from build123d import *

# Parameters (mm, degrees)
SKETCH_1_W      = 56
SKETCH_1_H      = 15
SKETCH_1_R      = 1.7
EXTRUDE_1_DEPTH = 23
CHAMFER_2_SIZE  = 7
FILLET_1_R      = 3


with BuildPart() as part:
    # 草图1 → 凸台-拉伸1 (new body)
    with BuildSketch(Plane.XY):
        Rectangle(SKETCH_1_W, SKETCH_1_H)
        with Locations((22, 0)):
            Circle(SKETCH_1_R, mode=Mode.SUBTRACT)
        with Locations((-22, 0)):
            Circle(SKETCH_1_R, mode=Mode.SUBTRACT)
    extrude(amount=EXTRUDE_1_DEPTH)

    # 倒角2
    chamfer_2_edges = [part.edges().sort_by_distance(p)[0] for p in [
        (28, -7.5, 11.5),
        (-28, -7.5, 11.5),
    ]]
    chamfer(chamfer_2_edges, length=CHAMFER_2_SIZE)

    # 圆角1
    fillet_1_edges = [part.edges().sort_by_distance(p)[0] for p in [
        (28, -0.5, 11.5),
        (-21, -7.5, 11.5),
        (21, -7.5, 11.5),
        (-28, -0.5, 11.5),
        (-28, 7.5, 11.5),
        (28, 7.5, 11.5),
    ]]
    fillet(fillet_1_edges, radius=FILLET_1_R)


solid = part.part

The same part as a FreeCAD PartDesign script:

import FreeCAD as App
import Part
import Sketcher

V = App.Vector


def edges_at(feature, points):
    """Names of the edges that pass closest to the given points."""
    edges = feature.Shape.Edges
    near = lambda p: min(range(len(edges)), key=lambda i: edges[i].distToShape(Part.Vertex(*p))[0])
    return sorted({f"Edge{near(p) + 1}" for p in points})

doc = App.newDocument("Part")
params = doc.addObject("Spreadsheet::Sheet", "Params")
for row, (alias, value) in enumerate([
    ("sketch1_diameter", "3.4 mm"),
    ("sketch1_width", "56 mm"),
    ("sketch1_height", "15 mm"),
    ("pad1_length", "23 mm"),
    ("chamfer_size", "7 mm"),
    ("fillet_radius", "3 mm"),
], start=1):
    params.set(f"A{row}", alias)
    params.set(f"B{row}", "=" + value)
    params.setAlias(f"B{row}", alias)

body = doc.addObject("PartDesign::Body", "Body")

sketch1 = body.newObject("Sketcher::SketchObject", "Sketch")
sketch1.AttachmentSupport = (doc.getObject("XY_Plane"), [""])
sketch1.MapMode = "FlatFace"
sketch1.addGeometry([
    Part.LineSegment(V(-28, 7.5, 0), V(-28, -7.5, 0)),
    Part.LineSegment(V(-28, -7.5, 0), V(28, -7.5, 0)),
    Part.LineSegment(V(28, -7.5, 0), V(28, 7.5, 0)),
    Part.LineSegment(V(28, 7.5, 0), V(-28, 7.5, 0)),
    Part.Circle(V(-22, 0, 0), V(0, 0, 1), 1.7),
    Part.Circle(V(22, 0, 0), V(0, 0, 1), 1.7),
], False)
sketch1.addConstraint([
    Sketcher.Constraint("Coincident", 0, 2, 1, 1),
    Sketcher.Constraint("Coincident", 1, 2, 2, 1),
    Sketcher.Constraint("Coincident", 2, 2, 3, 1),
    Sketcher.Constraint("Coincident", 3, 2, 0, 1),
    Sketcher.Constraint("Vertical", 0),
    Sketcher.Constraint("Horizontal", 1),
    Sketcher.Constraint("Vertical", 2),
    Sketcher.Constraint("Horizontal", 3),
    Sketcher.Constraint("Equal", 4, 5),
    Sketcher.Constraint("Symmetric", 4, 3, 5, 3, -1, 1),
    Sketcher.Constraint("Symmetric", 0, 2, 2, 2, -1, 1),
    Sketcher.Constraint("PointOnObject", 4, 3, -1),
    Sketcher.Constraint("Diameter", 4, 3.4),
    Sketcher.Constraint("DistanceX", 1, 1, 1, 2, 56.0),
    Sketcher.Constraint("DistanceY", 0, 2, 0, 1, 15.0),
    Sketcher.Constraint("DistanceX", 4, 3, -1, 1, 22.0),
])
sketch1.setExpression("Constraints[12]", "Params.sketch1_diameter")
sketch1.setExpression("Constraints[13]", "Params.sketch1_width")
sketch1.setExpression("Constraints[14]", "Params.sketch1_height")
pad1 = body.newObject("PartDesign::Pad", "Pad")
pad1.Profile = sketch1
pad1.setExpression("Length", "Params.pad1_length")
doc.recompute()

chamfer = body.newObject("PartDesign::Chamfer", "Chamfer")
chamfer.Base = (pad1, edges_at(pad1, [(28, -7.5, 11.5), (-28, -7.5, 11.5)]))
chamfer.setExpression("Size", "Params.chamfer_size")
doc.recompute()

fillet = body.newObject("PartDesign::Fillet", "Fillet")
fillet.Base = (chamfer, edges_at(chamfer, [
    (28, -0.5, 11.5),
    (-21, -7.5, 11.5),
    (21, -7.5, 11.5),
    (-28, -0.5, 11.5),
    (-28, 7.5, 11.5),
    (28, 7.5, 11.5),
]))
fillet.setExpression("Radius", "Params.fillet_radius")

doc.recompute()
